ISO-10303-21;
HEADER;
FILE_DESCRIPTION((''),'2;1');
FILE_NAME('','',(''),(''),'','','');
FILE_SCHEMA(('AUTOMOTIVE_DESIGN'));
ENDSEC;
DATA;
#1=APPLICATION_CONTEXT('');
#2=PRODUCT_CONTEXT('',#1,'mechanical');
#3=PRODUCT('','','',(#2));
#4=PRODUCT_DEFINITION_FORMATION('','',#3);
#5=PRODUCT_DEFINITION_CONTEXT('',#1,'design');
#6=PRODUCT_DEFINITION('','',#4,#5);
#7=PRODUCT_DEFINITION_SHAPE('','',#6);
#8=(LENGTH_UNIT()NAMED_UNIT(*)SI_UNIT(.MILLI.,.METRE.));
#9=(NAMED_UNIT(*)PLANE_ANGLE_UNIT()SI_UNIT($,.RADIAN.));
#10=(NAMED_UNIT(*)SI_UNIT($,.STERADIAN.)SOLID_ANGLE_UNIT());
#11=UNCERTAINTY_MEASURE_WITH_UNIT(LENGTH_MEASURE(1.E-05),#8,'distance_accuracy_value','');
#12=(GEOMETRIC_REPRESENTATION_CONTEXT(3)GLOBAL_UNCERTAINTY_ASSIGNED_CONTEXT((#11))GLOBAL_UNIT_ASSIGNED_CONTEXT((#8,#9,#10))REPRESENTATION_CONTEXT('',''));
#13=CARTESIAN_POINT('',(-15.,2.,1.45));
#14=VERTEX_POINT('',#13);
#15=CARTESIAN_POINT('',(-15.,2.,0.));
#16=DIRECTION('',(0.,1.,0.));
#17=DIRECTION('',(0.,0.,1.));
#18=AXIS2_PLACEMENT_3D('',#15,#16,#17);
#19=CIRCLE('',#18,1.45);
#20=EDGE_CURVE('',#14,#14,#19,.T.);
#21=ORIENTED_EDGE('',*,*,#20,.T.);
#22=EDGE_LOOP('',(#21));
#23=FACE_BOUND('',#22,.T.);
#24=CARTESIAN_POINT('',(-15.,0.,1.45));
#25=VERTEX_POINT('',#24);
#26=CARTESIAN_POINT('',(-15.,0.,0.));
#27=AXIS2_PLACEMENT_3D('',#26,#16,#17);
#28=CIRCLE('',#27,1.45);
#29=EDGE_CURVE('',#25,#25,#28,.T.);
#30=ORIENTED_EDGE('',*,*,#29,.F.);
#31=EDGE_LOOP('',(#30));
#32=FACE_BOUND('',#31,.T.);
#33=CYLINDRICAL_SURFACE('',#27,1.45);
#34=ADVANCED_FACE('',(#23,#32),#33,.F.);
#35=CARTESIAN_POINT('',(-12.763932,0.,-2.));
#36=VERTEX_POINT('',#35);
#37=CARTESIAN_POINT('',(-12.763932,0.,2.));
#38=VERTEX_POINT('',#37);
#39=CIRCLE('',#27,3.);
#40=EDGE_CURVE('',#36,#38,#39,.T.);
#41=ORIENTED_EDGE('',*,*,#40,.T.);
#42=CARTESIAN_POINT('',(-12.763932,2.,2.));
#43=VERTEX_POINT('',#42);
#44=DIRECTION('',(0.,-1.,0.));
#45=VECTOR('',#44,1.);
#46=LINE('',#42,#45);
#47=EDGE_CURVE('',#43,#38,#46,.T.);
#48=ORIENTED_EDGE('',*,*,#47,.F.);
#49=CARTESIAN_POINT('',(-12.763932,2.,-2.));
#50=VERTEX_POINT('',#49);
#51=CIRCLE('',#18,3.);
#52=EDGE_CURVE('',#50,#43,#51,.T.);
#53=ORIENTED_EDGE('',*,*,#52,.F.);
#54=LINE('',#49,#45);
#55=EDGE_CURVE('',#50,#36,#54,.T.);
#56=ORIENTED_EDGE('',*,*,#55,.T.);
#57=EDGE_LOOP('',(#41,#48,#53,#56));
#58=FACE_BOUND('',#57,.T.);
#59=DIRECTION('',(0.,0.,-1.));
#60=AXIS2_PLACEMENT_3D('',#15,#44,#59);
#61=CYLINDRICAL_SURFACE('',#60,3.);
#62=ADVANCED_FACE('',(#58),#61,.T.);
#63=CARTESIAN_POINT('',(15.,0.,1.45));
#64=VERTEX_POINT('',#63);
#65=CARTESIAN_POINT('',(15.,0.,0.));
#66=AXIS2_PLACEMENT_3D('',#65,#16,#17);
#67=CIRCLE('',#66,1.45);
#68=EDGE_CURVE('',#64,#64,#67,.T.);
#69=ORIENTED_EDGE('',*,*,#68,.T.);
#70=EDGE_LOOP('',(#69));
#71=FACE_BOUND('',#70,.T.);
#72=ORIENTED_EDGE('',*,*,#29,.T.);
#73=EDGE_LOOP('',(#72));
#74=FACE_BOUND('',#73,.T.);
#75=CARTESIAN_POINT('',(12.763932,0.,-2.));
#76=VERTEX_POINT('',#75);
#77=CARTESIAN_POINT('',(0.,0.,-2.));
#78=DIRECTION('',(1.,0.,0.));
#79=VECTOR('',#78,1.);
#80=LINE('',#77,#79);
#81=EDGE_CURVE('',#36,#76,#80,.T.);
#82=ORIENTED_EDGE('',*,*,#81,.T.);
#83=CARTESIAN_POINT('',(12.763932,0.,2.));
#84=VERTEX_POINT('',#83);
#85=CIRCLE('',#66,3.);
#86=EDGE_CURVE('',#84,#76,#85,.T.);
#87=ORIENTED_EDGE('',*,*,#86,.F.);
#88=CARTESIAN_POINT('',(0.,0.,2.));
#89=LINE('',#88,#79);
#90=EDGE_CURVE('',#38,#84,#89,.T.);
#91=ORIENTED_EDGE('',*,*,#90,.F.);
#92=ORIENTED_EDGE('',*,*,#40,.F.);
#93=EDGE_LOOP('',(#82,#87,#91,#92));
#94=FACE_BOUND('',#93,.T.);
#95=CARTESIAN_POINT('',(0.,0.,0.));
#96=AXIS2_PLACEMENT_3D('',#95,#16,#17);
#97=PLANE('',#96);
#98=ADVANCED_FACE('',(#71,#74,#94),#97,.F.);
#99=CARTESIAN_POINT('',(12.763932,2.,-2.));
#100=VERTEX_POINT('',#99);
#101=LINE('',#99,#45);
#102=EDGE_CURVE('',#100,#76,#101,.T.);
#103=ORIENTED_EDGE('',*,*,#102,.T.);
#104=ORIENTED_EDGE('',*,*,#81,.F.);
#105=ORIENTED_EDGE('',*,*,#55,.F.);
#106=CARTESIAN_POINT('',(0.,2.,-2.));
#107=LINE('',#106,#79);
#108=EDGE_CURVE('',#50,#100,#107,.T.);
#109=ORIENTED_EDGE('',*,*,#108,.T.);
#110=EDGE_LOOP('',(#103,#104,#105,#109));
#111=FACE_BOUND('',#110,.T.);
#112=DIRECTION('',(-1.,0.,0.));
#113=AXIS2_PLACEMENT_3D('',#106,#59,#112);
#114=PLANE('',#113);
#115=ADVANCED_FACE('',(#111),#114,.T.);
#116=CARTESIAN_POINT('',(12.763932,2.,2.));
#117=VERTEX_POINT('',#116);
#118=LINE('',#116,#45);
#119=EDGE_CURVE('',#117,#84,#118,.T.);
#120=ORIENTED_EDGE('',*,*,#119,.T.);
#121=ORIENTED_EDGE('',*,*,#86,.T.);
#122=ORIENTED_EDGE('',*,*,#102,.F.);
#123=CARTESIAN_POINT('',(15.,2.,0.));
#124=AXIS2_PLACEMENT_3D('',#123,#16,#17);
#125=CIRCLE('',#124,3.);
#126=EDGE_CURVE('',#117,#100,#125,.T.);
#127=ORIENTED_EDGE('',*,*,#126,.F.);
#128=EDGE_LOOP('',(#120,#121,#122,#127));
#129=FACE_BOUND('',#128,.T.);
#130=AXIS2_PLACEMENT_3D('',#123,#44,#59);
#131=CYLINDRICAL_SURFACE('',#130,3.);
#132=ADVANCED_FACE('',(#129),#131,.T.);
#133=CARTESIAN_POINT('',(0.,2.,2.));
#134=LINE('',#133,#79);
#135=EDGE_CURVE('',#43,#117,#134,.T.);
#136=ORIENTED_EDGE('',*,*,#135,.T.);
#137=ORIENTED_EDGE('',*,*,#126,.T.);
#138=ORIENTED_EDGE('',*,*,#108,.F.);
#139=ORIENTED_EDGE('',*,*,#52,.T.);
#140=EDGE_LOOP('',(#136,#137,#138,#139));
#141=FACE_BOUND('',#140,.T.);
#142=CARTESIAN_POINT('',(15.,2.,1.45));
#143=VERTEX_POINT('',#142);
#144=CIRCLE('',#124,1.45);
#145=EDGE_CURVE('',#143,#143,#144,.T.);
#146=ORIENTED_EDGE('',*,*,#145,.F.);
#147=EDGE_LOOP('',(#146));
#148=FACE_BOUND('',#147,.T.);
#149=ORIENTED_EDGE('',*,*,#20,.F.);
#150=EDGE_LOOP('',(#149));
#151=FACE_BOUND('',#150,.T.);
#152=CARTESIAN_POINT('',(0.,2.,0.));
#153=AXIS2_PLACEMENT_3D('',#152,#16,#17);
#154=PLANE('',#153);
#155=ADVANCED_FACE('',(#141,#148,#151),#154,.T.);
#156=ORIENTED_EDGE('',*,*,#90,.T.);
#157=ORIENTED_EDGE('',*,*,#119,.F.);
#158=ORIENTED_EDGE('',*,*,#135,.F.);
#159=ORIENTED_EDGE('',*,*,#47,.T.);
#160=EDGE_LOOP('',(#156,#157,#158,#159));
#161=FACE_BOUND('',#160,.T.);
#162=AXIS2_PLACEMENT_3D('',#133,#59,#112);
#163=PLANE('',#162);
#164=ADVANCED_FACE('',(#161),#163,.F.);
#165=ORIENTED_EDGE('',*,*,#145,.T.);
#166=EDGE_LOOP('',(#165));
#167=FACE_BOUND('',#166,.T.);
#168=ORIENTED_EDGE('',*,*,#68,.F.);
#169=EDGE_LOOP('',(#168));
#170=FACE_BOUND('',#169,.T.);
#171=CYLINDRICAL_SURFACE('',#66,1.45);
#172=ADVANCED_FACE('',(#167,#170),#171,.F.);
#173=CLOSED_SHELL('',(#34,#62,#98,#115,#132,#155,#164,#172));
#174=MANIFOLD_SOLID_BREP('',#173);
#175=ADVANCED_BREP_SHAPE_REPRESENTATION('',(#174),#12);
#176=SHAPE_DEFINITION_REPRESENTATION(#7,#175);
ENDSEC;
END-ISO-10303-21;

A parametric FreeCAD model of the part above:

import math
import FreeCAD as App
import Part
import Sketcher

doc = App.newDocument("Part")
body = doc.addObject("PartDesign::Body", "Body")

# Sketch on XZ plane
sketch1 = body.newObject("Sketcher::SketchObject", "Sketch")
sketch1.AttachmentSupport = (doc.getObject("XZ_Plane"), [""])
sketch1.MapMode = "FlatFace"
sketch1.addGeometry([
    Part.LineSegment(App.Vector(12.8, -2, 0), App.Vector(-12.8, -2, 0)),  # 0
    Part.ArcOfCircle(Part.Circle(App.Vector(-15, 0, 0), App.Vector(0, 0, 1), 3), math.radians(-90), math.radians(-42)),  # 1
    Part.ArcOfCircle(Part.Circle(App.Vector(-15, 0, 0), App.Vector(0, 0, 1), 3), math.radians(90), math.radians(270)),  # 2
    Part.ArcOfCircle(Part.Circle(App.Vector(-15, 0, 0), App.Vector(0, 0, 1), 3), math.radians(42), math.radians(90)),  # 3
    Part.LineSegment(App.Vector(-12.8, 2, 0), App.Vector(12.8, 2, 0)),  # 4
    Part.ArcOfCircle(Part.Circle(App.Vector(15, 0, 0), App.Vector(0, 0, 1), 3), math.radians(90), math.radians(138)),  # 5
    Part.ArcOfCircle(Part.Circle(App.Vector(15, 0, 0), App.Vector(0, 0, 1), 3), math.radians(-90), math.radians(90)),  # 6
    Part.ArcOfCircle(Part.Circle(App.Vector(15, 0, 0), App.Vector(0, 0, 1), 3), math.radians(-138), math.radians(-90)),  # 7
], False)
sketch1.addConstraint([
    Sketcher.Constraint("Coincident", 0, 2, 1, 2),
    Sketcher.Constraint("Tangent", 1, 1, 2, 2),
    Sketcher.Constraint("Tangent", 2, 1, 3, 2),
    Sketcher.Constraint("Coincident", 3, 1, 4, 1),
    Sketcher.Constraint("Coincident", 4, 2, 5, 2),
    Sketcher.Constraint("Tangent", 5, 1, 6, 2),
    Sketcher.Constraint("Tangent", 6, 1, 7, 2),
    Sketcher.Constraint("Coincident", 7, 1, 0, 1),
    Sketcher.Constraint("Horizontal", 0),
    Sketcher.Constraint("Horizontal", 4),
    Sketcher.Constraint("Equal", 1, 2),
    Sketcher.Constraint("Equal", 2, 3),
    Sketcher.Constraint("Equal", 3, 5),
    Sketcher.Constraint("Equal", 5, 6),
    Sketcher.Constraint("Equal", 6, 7),
    Sketcher.Constraint("Symmetric", 1, 3, 5, 3, -1, 1),
    Sketcher.Constraint("Symmetric", 2, 1, 5, 1, -2),
    Sketcher.Constraint("Vertical", 3, 3, 1, 1),
    Sketcher.Constraint("Vertical", 1, 1, 2, 1),
    Sketcher.Constraint("Vertical", 0, 2, 3, 1),
    Sketcher.Constraint("Vertical", 5, 1, 6, 1),
    Sketcher.Constraint("Radius", 1, 3.0),
    Sketcher.Constraint("DistanceX", 1, 3, -1, 1, 15.0),
    Sketcher.Constraint("DistanceY", 0, 2, -1, 1, 2.0),
])
pad1 = body.newObject("PartDesign::Pad", "Pad")
pad1.Profile = sketch1
pad1.Length = 2
pad1.Reversed = True

# Sketch on XZ plane
sketch2 = body.newObject("Sketcher::SketchObject", "Sketch001")
sketch2.AttachmentSupport = (doc.getObject("XZ_Plane"), [""])
sketch2.MapMode = "FlatFace"
sketch2.AttachmentOffset = App.Placement(App.Vector(0, 0, -2), App.Rotation())
sketch2.addGeometry([
    Part.Circle(App.Vector(-15, 0, 0), App.Vector(0, 0, 1), 1.4),
    Part.Circle(App.Vector(15, 0, 0), App.Vector(0, 0, 1), 1.4),
], False)
sketch2.addConstraint([
    Sketcher.Constraint("Equal", 0, 1),
    Sketcher.Constraint("Symmetric", 0, 3, 1, 3, -1, 1),
    Sketcher.Constraint("PointOnObject", 0, 3, -1),
    Sketcher.Constraint("Diameter", 0, 2.9),
    Sketcher.Constraint("DistanceX", 0, 3, -1, 1, 15.0),
])
pocket1 = body.newObject("PartDesign::Pocket", "Pocket")
pocket1.Profile = sketch2
pocket1.Length = 2
pocket1.Reversed = True

doc.recompute()
